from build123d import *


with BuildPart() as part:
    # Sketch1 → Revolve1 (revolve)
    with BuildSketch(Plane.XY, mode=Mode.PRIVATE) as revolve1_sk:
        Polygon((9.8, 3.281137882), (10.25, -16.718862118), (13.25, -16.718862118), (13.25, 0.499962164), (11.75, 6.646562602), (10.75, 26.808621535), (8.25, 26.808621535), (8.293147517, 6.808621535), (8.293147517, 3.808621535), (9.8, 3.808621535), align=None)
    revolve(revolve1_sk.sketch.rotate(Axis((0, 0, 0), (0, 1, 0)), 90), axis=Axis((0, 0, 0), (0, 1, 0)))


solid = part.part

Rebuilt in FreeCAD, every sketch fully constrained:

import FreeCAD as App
import Part
import Sketcher

V = App.Vector


def add_polygon(sketch, points):
    """Adds a closed chain of lines whose ends are joined by coincident constraints."""
    first, n = sketch.GeometryCount, len(points)
    for a, b in zip(points, points[1:] + points[:1]):
        sketch.addGeometry(Part.LineSegment(App.Vector(*a, 0), App.Vector(*b, 0)), False)
    for i in range(n):
        sketch.addConstraint(Sketcher.Constraint("Coincident", first + i, 2, first + (i + 1) % n, 1))

doc = App.newDocument("Part")
body = doc.addObject("PartDesign::Body", "Body")

sketch1 = body.newObject("Sketcher::SketchObject", "Sketch")
sketch1.AttachmentSupport = (doc.getObject("XY_Plane"), [""])
sketch1.MapMode = "FlatFace"
add_polygon(sketch1, [(9.8, 3.281138), (10.25, -16.718862), (13.25, -16.718862), (13.25, 0.499962), (11.75, 6.646563), (10.75, 26.808622), (8.25, 26.808622), (8.293148, 6.808622), (8.293148, 3.808622), (9.8, 3.808622)])
sketch1.addConstraint([
    Sketcher.Constraint("Horizontal", 1),
    Sketcher.Constraint("Vertical", 2),
    Sketcher.Constraint("Horizontal", 5),
    Sketcher.Constraint("Vertical", 7),
    Sketcher.Constraint("Horizontal", 8),
    Sketcher.Constraint("Vertical", 9),
    Sketcher.Constraint("Equal", 1, 7),
    Sketcher.Constraint("DistanceX", 1, 1, 1, 2, 3.0),
    Sketcher.Constraint("DistanceX", 5, 2, 5, 1, 2.5),
    Sketcher.Constraint("DistanceX", 4, 2, 3, 2, 1.0),
    Sketcher.Constraint("DistanceX", 5, 2, 2, 2, 5.0),
    Sketcher.Constraint("DistanceY", 6, 2, 5, 2, 20.0),
    Sketcher.Constraint("DistanceX", -1, 1, 8, 2, 9.8),
    Sketcher.Constraint("DistanceX", -1, 1, 0, 2, 10.25),
    Sketcher.Constraint("DistanceY", 2, 2, 3, 2, 6.1466),
    Sketcher.Constraint("Distance", 0, 20.005062),
    Sketcher.Constraint("DistanceX", 8, 1, 8, 2, 1.506852),
    Sketcher.Constraint("DistanceY", 2, 1, 2, 2, 17.218824),
    Sketcher.Constraint("DistanceY", 9, 2, 9, 1, 0.527484),
    Sketcher.Constraint("DistanceY", -1, 1, 4, 2, 26.808622),
])
revolution = body.newObject("PartDesign::Revolution", "Revolution")
revolution.Profile = sketch1
revolution.ReferenceAxis = (sketch1, ["V_Axis"])
revolution.Angle = 360

doc.recompute()
